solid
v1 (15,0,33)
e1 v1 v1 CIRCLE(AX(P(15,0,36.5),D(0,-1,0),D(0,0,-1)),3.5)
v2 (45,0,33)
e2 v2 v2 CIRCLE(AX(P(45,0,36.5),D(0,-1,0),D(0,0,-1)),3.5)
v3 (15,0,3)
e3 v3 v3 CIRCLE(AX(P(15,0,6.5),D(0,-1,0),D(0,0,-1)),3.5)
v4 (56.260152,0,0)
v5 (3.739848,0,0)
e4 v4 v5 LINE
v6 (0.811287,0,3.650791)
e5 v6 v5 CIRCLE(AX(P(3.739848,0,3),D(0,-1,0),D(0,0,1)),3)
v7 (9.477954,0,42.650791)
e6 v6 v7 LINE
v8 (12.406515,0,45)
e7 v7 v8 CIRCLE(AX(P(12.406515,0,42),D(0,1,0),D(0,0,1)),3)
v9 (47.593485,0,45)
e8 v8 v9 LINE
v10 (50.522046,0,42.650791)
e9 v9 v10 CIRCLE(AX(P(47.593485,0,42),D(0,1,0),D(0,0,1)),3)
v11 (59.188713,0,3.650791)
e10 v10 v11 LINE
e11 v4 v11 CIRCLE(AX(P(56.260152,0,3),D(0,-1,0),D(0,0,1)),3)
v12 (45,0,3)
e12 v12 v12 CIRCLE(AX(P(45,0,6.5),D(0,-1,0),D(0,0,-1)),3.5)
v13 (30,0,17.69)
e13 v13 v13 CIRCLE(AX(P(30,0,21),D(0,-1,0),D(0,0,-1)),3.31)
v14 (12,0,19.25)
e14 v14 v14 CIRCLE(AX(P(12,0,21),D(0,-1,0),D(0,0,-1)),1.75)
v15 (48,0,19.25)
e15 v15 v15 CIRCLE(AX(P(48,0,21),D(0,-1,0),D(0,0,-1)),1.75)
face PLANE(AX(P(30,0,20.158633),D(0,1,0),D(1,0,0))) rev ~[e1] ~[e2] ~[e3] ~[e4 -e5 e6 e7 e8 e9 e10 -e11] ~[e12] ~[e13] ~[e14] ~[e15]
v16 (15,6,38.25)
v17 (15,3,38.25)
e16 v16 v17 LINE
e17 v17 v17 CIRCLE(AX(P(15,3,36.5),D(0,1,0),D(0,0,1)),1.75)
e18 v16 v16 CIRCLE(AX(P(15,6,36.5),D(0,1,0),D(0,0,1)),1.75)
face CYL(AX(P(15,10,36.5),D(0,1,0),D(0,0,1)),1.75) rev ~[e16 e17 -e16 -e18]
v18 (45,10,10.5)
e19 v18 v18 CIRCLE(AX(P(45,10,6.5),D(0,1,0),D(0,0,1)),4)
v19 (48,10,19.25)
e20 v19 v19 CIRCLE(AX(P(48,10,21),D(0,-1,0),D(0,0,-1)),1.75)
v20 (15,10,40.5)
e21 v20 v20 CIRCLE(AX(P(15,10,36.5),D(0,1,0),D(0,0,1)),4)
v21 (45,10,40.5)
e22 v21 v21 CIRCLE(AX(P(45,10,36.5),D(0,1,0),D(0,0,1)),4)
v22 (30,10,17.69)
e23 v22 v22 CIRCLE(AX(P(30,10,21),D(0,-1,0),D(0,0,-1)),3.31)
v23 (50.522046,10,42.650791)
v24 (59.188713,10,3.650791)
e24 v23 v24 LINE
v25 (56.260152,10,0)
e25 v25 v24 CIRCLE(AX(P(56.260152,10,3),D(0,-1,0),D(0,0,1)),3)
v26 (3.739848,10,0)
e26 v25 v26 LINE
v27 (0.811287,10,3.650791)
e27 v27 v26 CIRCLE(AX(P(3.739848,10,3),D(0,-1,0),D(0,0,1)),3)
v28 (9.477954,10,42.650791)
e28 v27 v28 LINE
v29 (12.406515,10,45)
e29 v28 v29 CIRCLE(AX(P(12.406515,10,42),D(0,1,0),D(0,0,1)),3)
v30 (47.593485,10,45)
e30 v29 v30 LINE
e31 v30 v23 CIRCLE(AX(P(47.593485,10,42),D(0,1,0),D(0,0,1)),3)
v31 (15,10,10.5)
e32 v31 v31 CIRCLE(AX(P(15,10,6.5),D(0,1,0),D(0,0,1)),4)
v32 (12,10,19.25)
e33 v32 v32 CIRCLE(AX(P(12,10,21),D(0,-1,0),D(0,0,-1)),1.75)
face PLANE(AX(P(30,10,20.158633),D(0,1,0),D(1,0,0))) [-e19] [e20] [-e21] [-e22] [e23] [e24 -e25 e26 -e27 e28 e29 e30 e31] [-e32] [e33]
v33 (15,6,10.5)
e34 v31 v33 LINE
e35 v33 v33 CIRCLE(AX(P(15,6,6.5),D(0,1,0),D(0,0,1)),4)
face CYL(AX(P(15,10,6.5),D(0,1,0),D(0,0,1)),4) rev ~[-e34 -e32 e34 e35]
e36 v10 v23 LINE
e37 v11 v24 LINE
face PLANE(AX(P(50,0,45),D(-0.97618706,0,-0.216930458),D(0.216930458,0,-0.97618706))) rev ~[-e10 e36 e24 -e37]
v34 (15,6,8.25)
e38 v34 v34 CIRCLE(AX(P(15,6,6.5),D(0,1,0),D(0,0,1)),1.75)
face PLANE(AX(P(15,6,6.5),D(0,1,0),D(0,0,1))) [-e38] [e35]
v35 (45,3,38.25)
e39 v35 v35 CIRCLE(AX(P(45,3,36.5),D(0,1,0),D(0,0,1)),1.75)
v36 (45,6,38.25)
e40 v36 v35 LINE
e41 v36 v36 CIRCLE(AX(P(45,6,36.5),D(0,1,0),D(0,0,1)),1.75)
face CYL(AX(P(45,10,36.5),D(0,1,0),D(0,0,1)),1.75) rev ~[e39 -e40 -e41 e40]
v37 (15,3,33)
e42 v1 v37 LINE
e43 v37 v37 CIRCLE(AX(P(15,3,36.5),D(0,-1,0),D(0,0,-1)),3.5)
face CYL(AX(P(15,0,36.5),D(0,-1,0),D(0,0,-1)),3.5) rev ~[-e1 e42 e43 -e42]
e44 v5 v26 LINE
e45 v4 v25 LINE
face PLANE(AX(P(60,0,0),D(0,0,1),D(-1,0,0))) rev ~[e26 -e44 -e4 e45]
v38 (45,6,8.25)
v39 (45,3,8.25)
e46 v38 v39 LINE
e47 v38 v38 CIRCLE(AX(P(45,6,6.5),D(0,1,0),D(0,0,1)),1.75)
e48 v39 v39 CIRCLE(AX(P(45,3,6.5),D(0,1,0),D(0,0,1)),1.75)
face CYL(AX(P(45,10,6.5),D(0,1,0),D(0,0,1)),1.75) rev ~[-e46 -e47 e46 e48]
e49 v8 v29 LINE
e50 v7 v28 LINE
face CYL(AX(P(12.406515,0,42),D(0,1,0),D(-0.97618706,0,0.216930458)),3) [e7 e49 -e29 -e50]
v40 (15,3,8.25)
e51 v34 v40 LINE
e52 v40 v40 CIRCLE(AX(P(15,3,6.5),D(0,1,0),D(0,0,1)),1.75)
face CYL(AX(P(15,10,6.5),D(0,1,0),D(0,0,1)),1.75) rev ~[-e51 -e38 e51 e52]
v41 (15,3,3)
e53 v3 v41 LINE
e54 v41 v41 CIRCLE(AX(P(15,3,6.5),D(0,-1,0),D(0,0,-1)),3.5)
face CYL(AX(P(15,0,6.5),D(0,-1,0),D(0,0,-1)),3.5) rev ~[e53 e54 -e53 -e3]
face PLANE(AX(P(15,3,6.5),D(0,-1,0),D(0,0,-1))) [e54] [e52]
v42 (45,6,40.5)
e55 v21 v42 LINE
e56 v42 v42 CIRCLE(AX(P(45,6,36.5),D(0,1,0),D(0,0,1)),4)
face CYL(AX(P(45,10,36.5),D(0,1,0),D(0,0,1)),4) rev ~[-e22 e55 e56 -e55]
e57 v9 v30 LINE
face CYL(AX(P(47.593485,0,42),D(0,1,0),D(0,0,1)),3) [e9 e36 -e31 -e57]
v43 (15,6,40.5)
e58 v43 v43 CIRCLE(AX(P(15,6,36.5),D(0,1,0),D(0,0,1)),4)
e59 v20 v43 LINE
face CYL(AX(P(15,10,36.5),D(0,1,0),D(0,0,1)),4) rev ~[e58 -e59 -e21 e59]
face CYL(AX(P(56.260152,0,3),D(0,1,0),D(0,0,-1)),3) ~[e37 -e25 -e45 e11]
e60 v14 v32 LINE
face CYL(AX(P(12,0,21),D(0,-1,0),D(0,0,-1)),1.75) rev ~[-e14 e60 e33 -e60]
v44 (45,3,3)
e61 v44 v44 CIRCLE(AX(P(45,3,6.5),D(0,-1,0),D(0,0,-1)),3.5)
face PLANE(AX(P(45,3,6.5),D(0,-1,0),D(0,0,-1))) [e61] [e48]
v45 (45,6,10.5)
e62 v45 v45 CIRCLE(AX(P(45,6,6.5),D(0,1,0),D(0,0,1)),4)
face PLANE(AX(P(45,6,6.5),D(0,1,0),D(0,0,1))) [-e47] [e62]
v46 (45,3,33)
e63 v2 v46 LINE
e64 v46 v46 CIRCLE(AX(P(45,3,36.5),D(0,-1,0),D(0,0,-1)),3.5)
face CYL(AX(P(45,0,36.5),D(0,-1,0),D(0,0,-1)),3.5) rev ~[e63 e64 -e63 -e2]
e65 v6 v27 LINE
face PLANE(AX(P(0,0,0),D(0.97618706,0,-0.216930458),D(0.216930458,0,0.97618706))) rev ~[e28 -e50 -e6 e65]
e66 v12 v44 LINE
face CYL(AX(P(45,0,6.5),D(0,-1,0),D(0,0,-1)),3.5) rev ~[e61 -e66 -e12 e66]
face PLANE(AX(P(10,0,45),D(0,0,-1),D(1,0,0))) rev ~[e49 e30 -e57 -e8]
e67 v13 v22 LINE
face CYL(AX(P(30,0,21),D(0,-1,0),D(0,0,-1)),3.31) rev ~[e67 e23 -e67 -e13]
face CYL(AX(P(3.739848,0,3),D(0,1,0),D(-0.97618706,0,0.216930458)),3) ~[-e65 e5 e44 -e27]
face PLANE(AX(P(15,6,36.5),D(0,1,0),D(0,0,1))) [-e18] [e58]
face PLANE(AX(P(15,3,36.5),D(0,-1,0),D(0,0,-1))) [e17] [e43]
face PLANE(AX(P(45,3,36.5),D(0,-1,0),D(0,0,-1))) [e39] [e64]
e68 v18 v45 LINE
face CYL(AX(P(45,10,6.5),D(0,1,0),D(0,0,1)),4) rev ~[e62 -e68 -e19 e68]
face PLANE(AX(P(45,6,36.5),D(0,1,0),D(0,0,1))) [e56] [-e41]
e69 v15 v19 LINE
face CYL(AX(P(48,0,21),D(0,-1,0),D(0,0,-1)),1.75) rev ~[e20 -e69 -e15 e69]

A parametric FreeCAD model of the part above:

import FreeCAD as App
import Part
import Sketcher

V = App.Vector
Q = App.Units.Quantity


def edges_at(feature, points):
    """Names of the edges that pass closest to the given points."""
    edges = feature.Shape.Edges
    near = lambda p: min(range(len(edges)), key=lambda i: edges[i].distToShape(Part.Vertex(*p))[0])
    return sorted({f"Edge{near(p) + 1}" for p in points})

doc = App.newDocument("Part")
params = doc.addObject("Spreadsheet::Sheet", "Params")
for row, (alias, value) in enumerate([
    ("sketch1_width", "40 mm"),
    ("sketch1_width2", "60 mm"),
    ("pad1_length", "10 mm"),
    ("sketch2_diameter", "8 mm"),
    ("pocket1_length", "4 mm"),
    ("fillet_radius", "3 mm"),
    ("sketch3_diameter", "3.5 mm"),
    ("sketch3_diameter2", "6.62 mm"),
    ("pocket2_length", "10 mm"),
    ("sketch4_diameter", "3.5 mm"),
    ("pocket3_length", "10 mm"),
    ("sketch5_diameter", "7 mm"),
    ("pocket4_length", "3 mm"),
], start=1):
    params.set(f"A{row}", alias)
    params.set(f"B{row}", "=" + value)
    params.setAlias(f"B{row}", alias)

body = doc.addObject("PartDesign::Body", "Body")

sketch1 = body.newObject("Sketcher::SketchObject", "Sketch")
sketch1.AttachmentSupport = (doc.getObject("XZ_Plane"), [""])
sketch1.MapMode = "FlatFace"
sketch1.addGeometry([
    Part.LineSegment(V(0, 0, 0), V(10, 45, 0)),
    Part.LineSegment(V(10, 45, 0), V(50, 45, 0)),
    Part.LineSegment(V(50, 45, 0), V(60, 0, 0)),
    Part.LineSegment(V(60, 0, 0), V(0, 0, 0)),
], False)
sketch1.addConstraint([
    Sketcher.Constraint("Coincident", 0, 2, 1, 1),
    Sketcher.Constraint("Coincident", 1, 2, 2, 1),
    Sketcher.Constraint("Coincident", 2, 2, 3, 1),
    Sketcher.Constraint("Coincident", 3, 2, 0, 1),
    Sketcher.Constraint("Horizontal", 1),
    Sketcher.Constraint("Horizontal", 3),
    Sketcher.Constraint("Coincident", 3, 2, -1, 1),
    Sketcher.Constraint("Equal", 0, 2),
    Sketcher.Constraint("DistanceX", 1, 1, 1, 2, Q("40 mm")),
    Sketcher.Constraint("DistanceX", 3, 2, 3, 1, Q("60 mm")),
    Sketcher.Constraint("DistanceY", -1, 1, 0, 2, Q("45 mm")),
])
sketch1.setExpression("Constraints[8]", "Params.sketch1_width")
sketch1.setExpression("Constraints[9]", "Params.sketch1_width2")
pad1 = body.newObject("PartDesign::Pad", "Pad")
pad1.Profile = sketch1
pad1.setExpression("Length", "Params.pad1_length")
pad1.Reversed = True

sketch2 = body.newObject("Sketcher::SketchObject", "Sketch001")
sketch2.AttachmentSupport = (doc.getObject("XZ_Plane"), [""])
sketch2.MapMode = "FlatFace"
sketch2.AttachmentOffset = App.Placement(V(0, 0, -10), App.Rotation())
sketch2.addGeometry([
    Part.Circle(V(15, 6.5, 0), V(0, 0, 1), 4),
    Part.Circle(V(45, 6.5, 0), V(0, 0, 1), 4),
    Part.Circle(V(45, 36.5, 0), V(0, 0, 1), 4),
    Part.Circle(V(15, 36.5, 0), V(0, 0, 1), 4),
], False)
sketch2.addConstraint([
    Sketcher.Constraint("Equal", 0, 1),
    Sketcher.Constraint("Equal", 1, 2),
    Sketcher.Constraint("Equal", 2, 3),
    Sketcher.Constraint("Horizontal", 0, 3, 1, 3),
    Sketcher.Constraint("Horizontal", 2, 3, 3, 3),
    Sketcher.Constraint("Vertical", 1, 3, 2, 3),
    Sketcher.Constraint("Vertical", 0, 3, 3, 3),
    Sketcher.Constraint("Diameter", 0, Q("8 mm")),
    Sketcher.Constraint("DistanceX", -1, 1, 0, 3, Q("15 mm")),
    Sketcher.Constraint("DistanceX", -1, 1, 1, 3, Q("45 mm")),
    Sketcher.Constraint("DistanceY", 1, 3, 2, 3, Q("30 mm")),
    Sketcher.Constraint("DistanceY", -1, 1, 0, 3, Q("6.5 mm")),
])
sketch2.setExpression("Constraints[7]", "Params.sketch2_diameter")
pocket1 = body.newObject("PartDesign::Pocket", "Pocket")
pocket1.Profile = sketch2
pocket1.setExpression("Length", "Params.pocket1_length")
pocket1.Reversed = True
doc.recompute()

fillet = body.newObject("PartDesign::Fillet", "Fillet")
fillet.Base = (pocket1, edges_at(pocket1, [
    (60, 5, 0),
    (50, 5, 45),
    (10, 5, 45),
    (0, 5, 0),
]))
fillet.setExpression("Radius", "Params.fillet_radius")

sketch3 = body.newObject("Sketcher::SketchObject", "Sketch002")
sketch3.AttachmentSupport = (doc.getObject("XZ_Plane"), [""])
sketch3.MapMode = "FlatFace"
sketch3.addGeometry([
    Part.Circle(V(12, 21, 0), V(0, 0, 1), 1.75),
    Part.Circle(V(48, 21, 0), V(0, 0, 1), 1.75),
    Part.Circle(V(30, 21, 0), V(0, 0, 1), 3.31),
], False)
sketch3.addConstraint([
    Sketcher.Constraint("Equal", 0, 1),
    Sketcher.Constraint("Horizontal", 0, 3, 1, 3),
    Sketcher.Constraint("Horizontal", 1, 3, 2, 3),
    Sketcher.Constraint("Diameter", 0, Q("3.5 mm")),
    Sketcher.Constraint("Diameter", 2, Q("6.62 mm")),
    Sketcher.Constraint("DistanceX", -1, 1, 0, 3, Q("12 mm")),
    Sketcher.Constraint("DistanceY", -1, 1, 0, 3, Q("21 mm")),
    Sketcher.Constraint("DistanceX", -1, 1, 1, 3, Q("48 mm")),
    Sketcher.Constraint("DistanceX", -1, 1, 2, 3, Q("30 mm")),
])
sketch3.setExpression("Constraints[3]", "Params.sketch3_diameter")
sketch3.setExpression("Constraints[4]", "Params.sketch3_diameter2")
pocket2 = body.newObject("PartDesign::Pocket", "Pocket001")
pocket2.Profile = sketch3
pocket2.setExpression("Length", "Params.pocket2_length")

sketch4 = body.newObject("Sketcher::SketchObject", "Sketch003")
sketch4.AttachmentSupport = (doc.getObject("XZ_Plane"), [""])
sketch4.MapMode = "FlatFace"
sketch4.AttachmentOffset = App.Placement(V(0, 0, -10), App.Rotation())
sketch4.addGeometry([
    Part.Circle(V(15, 6.5, 0), V(0, 0, 1), 1.75),
    Part.Circle(V(45, 6.5, 0), V(0, 0, 1), 1.75),
    Part.Circle(V(45, 36.5, 0), V(0, 0, 1), 1.75),
    Part.Circle(V(15, 36.5, 0), V(0, 0, 1), 1.75),
], False)
sketch4.addConstraint([
    Sketcher.Constraint("Equal", 0, 1),
    Sketcher.Constraint("Equal", 1, 2),
    Sketcher.Constraint("Equal", 2, 3),
    Sketcher.Constraint("Horizontal", 0, 3, 1, 3),
    Sketcher.Constraint("Horizontal", 2, 3, 3, 3),
    Sketcher.Constraint("Vertical", 1, 3, 2, 3),
    Sketcher.Constraint("Vertical", 0, 3, 3, 3),
    Sketcher.Constraint("Diameter", 0, Q("3.5 mm")),
    Sketcher.Constraint("DistanceX", -1, 1, 0, 3, Q("15 mm")),
    Sketcher.Constraint("DistanceX", -1, 1, 1, 3, Q("45 mm")),
    Sketcher.Constraint("DistanceY", 1, 3, 2, 3, Q("30 mm")),
    Sketcher.Constraint("DistanceY", -1, 1, 0, 3, Q("6.5 mm")),
])
sketch4.setExpression("Constraints[7]", "Params.sketch4_diameter")
pocket3 = body.newObject("PartDesign::Pocket", "Pocket002")
pocket3.Profile = sketch4
pocket3.setExpression("Length", "Params.pocket3_length")
pocket3.Reversed = True

sketch5 = body.newObject("Sketcher::SketchObject", "Sketch004")
sketch5.AttachmentSupport = (doc.getObject("XZ_Plane"), [""])
sketch5.MapMode = "FlatFace"
sketch5.addGeometry([
    Part.Circle(V(15, 36.5, 0), V(0, 0, 1), 3.5),
    Part.Circle(V(45, 36.5, 0), V(0, 0, 1), 3.5),
    Part.Circle(V(45, 6.5, 0), V(0, 0, 1), 3.5),
    Part.Circle(V(15, 6.5, 0), V(0, 0, 1), 3.5),
], False)
sketch5.addConstraint([
    Sketcher.Constraint("Equal", 0, 1),
    Sketcher.Constraint("Equal", 1, 2),
    Sketcher.Constraint("Equal", 2, 3),
    Sketcher.Constraint("Horizontal", 0, 3, 1, 3),
    Sketcher.Constraint("Horizontal", 2, 3, 3, 3),
    Sketcher.Constraint("Vertical", 1, 3, 2, 3),
    Sketcher.Constraint("Vertical", 0, 3, 3, 3),
    Sketcher.Constraint("Diameter", 0, Q("7 mm")),
    Sketcher.Constraint("DistanceX", -1, 1, 0, 3, Q("15 mm")),
    Sketcher.Constraint("DistanceX", -1, 1, 1, 3, Q("45 mm")),
    Sketcher.Constraint("DistanceY", 2, 3, 1, 3, Q("30 mm")),
    Sketcher.Constraint("DistanceY", -1, 1, 0, 3, Q("36.5 mm")),
])
sketch5.setExpression("Constraints[7]", "Params.sketch5_diameter")
pocket4 = body.newObject("PartDesign::Pocket", "Pocket003")
pocket4.Profile = sketch5
pocket4.setExpression("Length", "Params.pocket4_length")

doc.recompute()
